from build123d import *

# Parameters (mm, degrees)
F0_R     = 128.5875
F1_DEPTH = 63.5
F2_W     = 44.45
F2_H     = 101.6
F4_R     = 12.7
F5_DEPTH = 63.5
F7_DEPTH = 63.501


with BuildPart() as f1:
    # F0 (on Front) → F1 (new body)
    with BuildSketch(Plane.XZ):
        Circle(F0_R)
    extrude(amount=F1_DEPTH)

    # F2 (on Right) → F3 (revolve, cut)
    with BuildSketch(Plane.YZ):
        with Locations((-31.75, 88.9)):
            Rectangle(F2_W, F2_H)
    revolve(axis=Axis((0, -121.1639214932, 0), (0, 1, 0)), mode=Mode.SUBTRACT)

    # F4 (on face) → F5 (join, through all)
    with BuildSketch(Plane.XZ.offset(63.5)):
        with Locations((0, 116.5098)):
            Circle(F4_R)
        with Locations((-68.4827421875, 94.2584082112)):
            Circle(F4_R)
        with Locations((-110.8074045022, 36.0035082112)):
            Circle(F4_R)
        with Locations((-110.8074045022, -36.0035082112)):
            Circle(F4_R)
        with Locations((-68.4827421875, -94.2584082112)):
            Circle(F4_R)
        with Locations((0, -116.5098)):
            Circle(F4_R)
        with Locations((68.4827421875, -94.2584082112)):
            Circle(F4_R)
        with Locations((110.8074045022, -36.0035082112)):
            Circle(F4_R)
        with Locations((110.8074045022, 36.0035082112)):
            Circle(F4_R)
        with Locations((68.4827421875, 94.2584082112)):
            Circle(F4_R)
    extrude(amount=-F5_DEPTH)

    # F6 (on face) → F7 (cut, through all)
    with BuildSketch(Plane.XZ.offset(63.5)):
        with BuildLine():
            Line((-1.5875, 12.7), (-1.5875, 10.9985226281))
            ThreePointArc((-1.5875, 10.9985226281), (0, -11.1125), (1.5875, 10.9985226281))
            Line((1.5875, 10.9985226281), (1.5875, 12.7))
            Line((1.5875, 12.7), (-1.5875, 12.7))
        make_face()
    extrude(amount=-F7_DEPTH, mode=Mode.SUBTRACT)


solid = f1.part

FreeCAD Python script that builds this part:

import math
import FreeCAD as App
import Part
import Sketcher

V = App.Vector
Q = App.Units.Quantity

doc = App.newDocument("Part")
body = doc.addObject("PartDesign::Body", "Body")

# Sketch on XZ plane
sketch1 = body.newObject("Sketcher::SketchObject", "Sketch")
sketch1.AttachmentSupport = (doc.getObject("XZ_Plane"), [""])
sketch1.MapMode = "FlatFace"
sketch1.addGeometry(Part.Circle(V(0, 0, 0), V(0, 0, 1), 128.5875), False)
sketch1.addConstraint([
    Sketcher.Constraint("Coincident", 0, 3, -1, 1),
    Sketcher.Constraint("Diameter", 0, Q("10.125 in")),
])
pad1 = body.newObject("PartDesign::Pad", "Pad")
pad1.Profile = sketch1
pad1.Length = Q("2.5 in")

# Sketch on YZ plane
sketch2 = body.newObject("Sketcher::SketchObject", "Sketch001")
sketch2.AttachmentSupport = (doc.getObject("YZ_Plane"), [""])
sketch2.MapMode = "FlatFace"
sketch2.addGeometry([
    Part.LineSegment(V(-53.975, 139.7, 0), V(-53.975, 38.1, 0)),
    Part.LineSegment(V(-53.975, 38.1, 0), V(-9.525, 38.1, 0)),
    Part.LineSegment(V(-9.525, 38.1, 0), V(-9.525, 139.7, 0)),
    Part.LineSegment(V(-9.525, 139.7, 0), V(-53.975, 139.7, 0)),
], False)
sketch2.addConstraint([
    Sketcher.Constraint("Coincident", 0, 2, 1, 1),
    Sketcher.Constraint("Coincident", 1, 2, 2, 1),
    Sketcher.Constraint("Coincident", 2, 2, 3, 1),
    Sketcher.Constraint("Coincident", 3, 2, 0, 1),
    Sketcher.Constraint("Vertical", 0),
    Sketcher.Constraint("Horizontal", 1),
    Sketcher.Constraint("Vertical", 2),
    Sketcher.Constraint("Horizontal", 3),
    Sketcher.Constraint("DistanceY", 0, 2, 0, 1, Q("4 in")),
    Sketcher.Constraint("DistanceX", 1, 1, 1, 2, Q("1.75 in")),
    Sketcher.Constraint("DistanceY", -1, 1, 0, 2, Q("1.5 in")),
    Sketcher.Constraint("DistanceX", 0, 2, -1, 1, Q("2.125 in")),
])
groove = body.newObject("PartDesign::Groove", "Groove")
groove.Profile = sketch2
groove.ReferenceAxis = (sketch2, ["H_Axis"])
groove.Angle = 360

# Sketch on XZ plane
sketch3 = body.newObject("Sketcher::SketchObject", "Sketch002")
sketch3.AttachmentSupport = (doc.getObject("XZ_Plane"), [""])
sketch3.MapMode = "FlatFace"
sketch3.AttachmentOffset = App.Placement(V(0, 0, 2.5 * 25.4), App.Rotation())
sketch3.addGeometry([
    Part.Circle(V(0, 116.5098, 0), V(0, 0, 1), 12.7),  # 0
    Part.Circle(V(-68.482742, 94.258408, 0), V(0, 0, 1), 12.7),  # 1
    Part.Circle(V(-110.807405, 36.003508, 0), V(0, 0, 1), 12.7),  # 2
    Part.Circle(V(-110.807405, -36.003508, 0), V(0, 0, 1), 12.7),  # 3
    Part.Circle(V(-68.482742, -94.258408, 0), V(0, 0, 1), 12.7),  # 4
    Part.Circle(V(0, -116.5098, 0), V(0, 0, 1), 12.7),  # 5
    Part.Circle(V(68.482742, -94.258408, 0), V(0, 0, 1), 12.7),  # 6
    Part.Circle(V(110.807405, -36.003508, 0), V(0, 0, 1), 12.7),  # 7
    Part.Circle(V(110.807405, 36.003508, 0), V(0, 0, 1), 12.7),  # 8
    Part.Circle(V(68.482742, 94.258408, 0), V(0, 0, 1), 12.7),  # 9
], False)
sketch3.addConstraint([
    Sketcher.Constraint("Equal", 0, 1),
    Sketcher.Constraint("Equal", 1, 2),
    Sketcher.Constraint("Equal", 2, 3),
    Sketcher.Constraint("Equal", 3, 4),
    Sketcher.Constraint("Equal", 4, 5),
    Sketcher.Constraint("Equal", 5, 6),
    Sketcher.Constraint("Equal", 6, 7),
    Sketcher.Constraint("Equal", 7, 8),
    Sketcher.Constraint("Equal", 8, 9),
    Sketcher.Constraint("Symmetric", 0, 3, 5, 3, -1, 1),
    Sketcher.Constraint("Symmetric", 1, 3, 6, 3, -1, 1),
    Sketcher.Constraint("Symmetric", 2, 3, 7, 3, -1, 1),
    Sketcher.Constraint("Symmetric", 3, 3, 8, 3, -1, 1),
    Sketcher.Constraint("Symmetric", 4, 3, 9, 3, -1, 1),
    Sketcher.Constraint("Symmetric", 4, 3, 6, 3, -2),
    Sketcher.Constraint("Symmetric", 3, 3, 7, 3, -2),
    Sketcher.Constraint("PointOnObject", 0, 3, -2),
    Sketcher.Constraint("Diameter", 0, Q("1 in")),
    Sketcher.Constraint("DistanceY", -1, 1, 0, 3, Q("4.587 in")),
    Sketcher.Constraint("DistanceY", 2, 3, 1, 3, Q("2.2935 in")),
    Sketcher.Constraint("DistanceY", -1, 1, 1, 3, 94.258408),
    Sketcher.Constraint("DistanceX", 1, 3, -1, 1, 68.482742),
    Sketcher.Constraint("DistanceX", 2, 3, -1, 1, 110.807405),
])
pad2 = body.newObject("PartDesign::Pad", "Pad001")
pad2.Profile = sketch3
pad2.Type = "UpToLast"
pad2.Reversed = True

# Sketch on XZ plane
sketch4 = body.newObject("Sketcher::SketchObject", "Sketch003")
sketch4.AttachmentSupport = (doc.getObject("XZ_Plane"), [""])
sketch4.MapMode = "FlatFace"
sketch4.AttachmentOffset = App.Placement(V(0, 0, 2.5 * 25.4), App.Rotation())
sketch4.addGeometry([
    Part.LineSegment(V(-1.5875, 12.7, 0), V(-1.5875, 10.998523, 0)),
    Part.ArcOfCircle(Part.Circle(V(0, 0, 0), V(0, 0, 1), 11.1125), math.radians(98.213211), math.radians(441.786789)),
    Part.LineSegment(V(1.5875, 10.998523, 0), V(1.5875, 12.7, 0)),
    Part.LineSegment(V(1.5875, 12.7, 0), V(-1.5875, 12.7, 0)),
], False)
sketch4.addConstraint([
    Sketcher.Constraint("Coincident", 0, 2, 1, 1),
    Sketcher.Constraint("Coincident", 1, 2, 2, 1),
    Sketcher.Constraint("Coincident", 2, 2, 3, 1),
    Sketcher.Constraint("Coincident", 3, 2, 0, 1),
    Sketcher.Constraint("Vertical", 0),
    Sketcher.Constraint("Vertical", 2),
    Sketcher.Constraint("Horizontal", 3),
    Sketcher.Constraint("Coincident", 1, 3, -1, 1),
    Sketcher.Constraint("Horizontal", 0, 2, 1, 2),
    Sketcher.Constraint("Radius", 1, Q("0.4375 in")),
    Sketcher.Constraint("DistanceY", -1, 1, 2, 2, Q("0.5 in")),
    Sketcher.Constraint("DistanceX", 3, 2, 3, 1, Q("0.125 in")),
])
pocket1 = body.newObject("PartDesign::Pocket", "Pocket")
pocket1.Profile = sketch4
pocket1.Type = "ThroughAll"

doc.recompute()
